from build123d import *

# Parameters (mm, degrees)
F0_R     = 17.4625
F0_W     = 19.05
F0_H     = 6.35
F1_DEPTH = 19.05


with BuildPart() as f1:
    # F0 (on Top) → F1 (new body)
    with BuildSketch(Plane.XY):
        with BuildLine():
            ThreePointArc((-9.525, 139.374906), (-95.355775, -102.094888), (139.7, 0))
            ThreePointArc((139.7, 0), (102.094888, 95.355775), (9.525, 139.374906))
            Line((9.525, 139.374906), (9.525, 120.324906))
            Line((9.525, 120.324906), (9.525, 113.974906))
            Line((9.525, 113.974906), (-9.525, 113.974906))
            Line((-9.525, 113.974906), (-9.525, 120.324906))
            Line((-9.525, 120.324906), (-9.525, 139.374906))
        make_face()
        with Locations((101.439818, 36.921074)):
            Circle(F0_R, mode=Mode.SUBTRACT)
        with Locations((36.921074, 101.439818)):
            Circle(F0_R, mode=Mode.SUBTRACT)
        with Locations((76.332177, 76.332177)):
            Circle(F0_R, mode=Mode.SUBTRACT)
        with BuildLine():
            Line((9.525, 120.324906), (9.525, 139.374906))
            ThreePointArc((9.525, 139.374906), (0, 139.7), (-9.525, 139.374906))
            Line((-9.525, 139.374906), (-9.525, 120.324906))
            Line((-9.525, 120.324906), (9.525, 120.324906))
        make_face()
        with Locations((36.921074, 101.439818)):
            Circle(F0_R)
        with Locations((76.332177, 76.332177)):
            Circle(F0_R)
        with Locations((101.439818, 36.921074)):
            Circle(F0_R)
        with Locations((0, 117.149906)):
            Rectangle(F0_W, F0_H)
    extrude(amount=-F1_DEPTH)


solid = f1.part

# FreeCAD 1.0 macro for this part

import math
import FreeCAD as App
import Part
import Sketcher

V = App.Vector
Q = App.Units.Quantity

doc = App.newDocument("Part")
body = doc.addObject("PartDesign::Body", "Body")

# Sketch on XY plane
sketch1 = body.newObject("Sketcher::SketchObject", "Sketch")
sketch1.AttachmentSupport = (doc.getObject("XY_Plane"), [""])
sketch1.MapMode = "FlatFace"
sketch1.addGeometry(Part.ArcOfCircle(Part.Circle(V(0, 0, 0), V(0, 0, 1), 139.7), math.radians(93.909564), math.radians(360)), False)
sketch1.addGeometry(Part.ArcOfCircle(Part.Circle(V(0, 0, 0), V(0, 0, 1), 139.7), math.radians(0), math.radians(86.090436)), False)
sketch1.addGeometry(Part.ArcOfCircle(Part.Circle(V(0, -0.000073, 0), V(0, 0, 1), 139.700073), math.radians(86.090439), math.radians(93.909561)), False)
sketch1.addConstraint(Sketcher.Constraint("Coincident", 0, 2, 1, 1))
sketch1.addConstraint(Sketcher.Constraint("Coincident", 1, 2, 2, 1))
sketch1.addConstraint(Sketcher.Constraint("Coincident", 2, 2, 0, 1))
sketch1.addConstraint(Sketcher.Constraint("Coincident", 0, 3, -1, 1))
sketch1.addConstraint(Sketcher.Constraint("Coincident", 1, 3, -1, 1))
sketch1.addConstraint(Sketcher.Constraint("PointOnObject", 0, 2, -1))
sketch1.addConstraint(Sketcher.Constraint("Radius", 0, Q("5.5 in")))
sketch1.addConstraint(Sketcher.Constraint("DistanceX", 2, 2, 1, 2, Q("0.75 in")))
sketch1.addConstraint(Sketcher.Constraint("DistanceX", -1, 1, 1, 2, Q("0.375 in")))
sketch1.addConstraint(Sketcher.Constraint("Radius", 2, Q("139.700073 mm")))
pad1 = body.newObject("PartDesign::Pad", "Pad")
pad1.Profile = sketch1
pad1.Length = Q("0.75 in")
pad1.Reversed = True

doc.recompute()
